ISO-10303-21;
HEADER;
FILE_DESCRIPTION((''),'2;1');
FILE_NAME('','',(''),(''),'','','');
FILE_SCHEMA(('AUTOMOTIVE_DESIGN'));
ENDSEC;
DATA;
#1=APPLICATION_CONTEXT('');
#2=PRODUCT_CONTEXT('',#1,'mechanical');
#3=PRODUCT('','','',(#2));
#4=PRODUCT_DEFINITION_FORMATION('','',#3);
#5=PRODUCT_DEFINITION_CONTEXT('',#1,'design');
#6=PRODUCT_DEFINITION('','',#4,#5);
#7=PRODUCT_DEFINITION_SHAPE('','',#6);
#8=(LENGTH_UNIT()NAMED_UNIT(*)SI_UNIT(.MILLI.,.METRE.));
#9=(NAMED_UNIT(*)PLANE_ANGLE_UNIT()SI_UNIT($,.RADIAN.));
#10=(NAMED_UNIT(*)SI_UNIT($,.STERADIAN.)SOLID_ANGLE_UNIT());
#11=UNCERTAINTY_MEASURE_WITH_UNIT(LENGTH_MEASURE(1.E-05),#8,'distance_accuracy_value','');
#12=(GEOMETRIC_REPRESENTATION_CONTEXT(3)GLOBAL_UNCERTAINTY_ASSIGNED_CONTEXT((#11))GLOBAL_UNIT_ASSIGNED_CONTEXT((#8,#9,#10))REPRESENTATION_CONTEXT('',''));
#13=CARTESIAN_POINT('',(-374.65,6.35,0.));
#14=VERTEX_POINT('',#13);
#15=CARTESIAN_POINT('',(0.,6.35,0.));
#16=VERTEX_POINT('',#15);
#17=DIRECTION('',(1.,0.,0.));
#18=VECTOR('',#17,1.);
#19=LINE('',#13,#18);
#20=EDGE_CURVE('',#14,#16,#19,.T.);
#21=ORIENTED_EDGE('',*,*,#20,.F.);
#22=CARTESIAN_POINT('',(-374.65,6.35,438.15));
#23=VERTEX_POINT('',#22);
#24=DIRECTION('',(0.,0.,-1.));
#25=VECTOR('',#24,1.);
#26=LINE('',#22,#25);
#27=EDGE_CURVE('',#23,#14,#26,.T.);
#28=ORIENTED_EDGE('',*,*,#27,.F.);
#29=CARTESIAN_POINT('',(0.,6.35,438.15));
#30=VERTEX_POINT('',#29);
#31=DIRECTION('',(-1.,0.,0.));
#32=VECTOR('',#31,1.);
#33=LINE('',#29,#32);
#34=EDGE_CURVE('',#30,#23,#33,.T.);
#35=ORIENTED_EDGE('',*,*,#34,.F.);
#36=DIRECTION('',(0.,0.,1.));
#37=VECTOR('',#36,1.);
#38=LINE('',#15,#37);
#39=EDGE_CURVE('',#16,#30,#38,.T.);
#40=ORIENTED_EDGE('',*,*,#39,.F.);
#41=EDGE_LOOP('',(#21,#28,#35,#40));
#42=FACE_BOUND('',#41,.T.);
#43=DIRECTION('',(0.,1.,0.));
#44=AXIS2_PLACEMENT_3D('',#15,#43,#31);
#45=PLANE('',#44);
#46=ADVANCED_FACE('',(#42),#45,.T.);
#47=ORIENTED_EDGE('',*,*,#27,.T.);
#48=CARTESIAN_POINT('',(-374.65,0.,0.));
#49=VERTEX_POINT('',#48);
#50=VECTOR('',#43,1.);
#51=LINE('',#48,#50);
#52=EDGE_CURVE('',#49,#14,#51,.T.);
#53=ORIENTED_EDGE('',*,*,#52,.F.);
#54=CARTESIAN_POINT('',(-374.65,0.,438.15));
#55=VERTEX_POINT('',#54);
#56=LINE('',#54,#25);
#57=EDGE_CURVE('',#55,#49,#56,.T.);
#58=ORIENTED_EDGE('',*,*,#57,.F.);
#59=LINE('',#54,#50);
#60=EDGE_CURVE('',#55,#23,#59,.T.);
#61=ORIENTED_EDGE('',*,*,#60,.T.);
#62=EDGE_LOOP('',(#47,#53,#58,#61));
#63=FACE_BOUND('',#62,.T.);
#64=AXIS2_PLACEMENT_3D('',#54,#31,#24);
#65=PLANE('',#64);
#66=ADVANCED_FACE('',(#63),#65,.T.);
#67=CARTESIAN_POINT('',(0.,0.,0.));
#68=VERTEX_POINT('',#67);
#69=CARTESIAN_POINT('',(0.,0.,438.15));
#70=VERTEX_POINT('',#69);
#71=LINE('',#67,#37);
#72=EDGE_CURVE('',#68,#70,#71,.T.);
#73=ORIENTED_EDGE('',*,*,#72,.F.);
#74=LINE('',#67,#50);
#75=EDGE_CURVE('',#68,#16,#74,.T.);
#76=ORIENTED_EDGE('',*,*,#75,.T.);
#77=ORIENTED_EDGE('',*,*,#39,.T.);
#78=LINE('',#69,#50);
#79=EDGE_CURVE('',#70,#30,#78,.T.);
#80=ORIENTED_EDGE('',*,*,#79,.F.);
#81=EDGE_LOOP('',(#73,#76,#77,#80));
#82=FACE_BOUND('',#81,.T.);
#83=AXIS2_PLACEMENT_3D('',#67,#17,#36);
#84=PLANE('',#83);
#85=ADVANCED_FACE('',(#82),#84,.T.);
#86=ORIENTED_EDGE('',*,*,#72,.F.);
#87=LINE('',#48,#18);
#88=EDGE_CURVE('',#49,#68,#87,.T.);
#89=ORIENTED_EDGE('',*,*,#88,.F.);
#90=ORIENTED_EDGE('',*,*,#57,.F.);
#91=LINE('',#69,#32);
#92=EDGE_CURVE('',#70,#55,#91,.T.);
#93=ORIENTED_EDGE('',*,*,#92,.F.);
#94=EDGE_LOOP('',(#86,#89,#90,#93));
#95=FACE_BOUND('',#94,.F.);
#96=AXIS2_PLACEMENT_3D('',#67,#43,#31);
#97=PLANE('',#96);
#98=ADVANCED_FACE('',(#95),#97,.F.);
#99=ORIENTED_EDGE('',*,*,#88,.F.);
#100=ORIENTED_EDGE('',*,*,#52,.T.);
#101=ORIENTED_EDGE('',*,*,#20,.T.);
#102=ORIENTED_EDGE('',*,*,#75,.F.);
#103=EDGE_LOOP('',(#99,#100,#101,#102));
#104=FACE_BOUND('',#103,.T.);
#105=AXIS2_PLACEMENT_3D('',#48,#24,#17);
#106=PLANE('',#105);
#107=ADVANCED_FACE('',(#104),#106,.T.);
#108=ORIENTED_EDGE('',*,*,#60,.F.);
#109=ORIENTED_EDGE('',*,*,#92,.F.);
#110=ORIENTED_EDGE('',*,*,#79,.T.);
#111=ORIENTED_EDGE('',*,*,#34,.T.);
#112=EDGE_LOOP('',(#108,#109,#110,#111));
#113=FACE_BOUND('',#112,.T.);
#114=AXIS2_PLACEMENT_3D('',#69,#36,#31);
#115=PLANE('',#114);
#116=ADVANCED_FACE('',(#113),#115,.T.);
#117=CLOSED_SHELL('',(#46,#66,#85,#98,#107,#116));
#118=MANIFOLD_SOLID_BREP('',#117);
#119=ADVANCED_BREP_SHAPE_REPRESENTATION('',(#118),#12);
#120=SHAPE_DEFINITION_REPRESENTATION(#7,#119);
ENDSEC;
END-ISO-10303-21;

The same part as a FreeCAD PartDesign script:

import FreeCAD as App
import Part
import Sketcher
from FreeCAD import Vector
Q = App.Units.Quantity

doc = App.newDocument("Part")
params = doc.addObject("Spreadsheet::Sheet", "Params")
for row, (alias, value) in enumerate([
    ("sketch1_width", "14.75 in"),
    ("sketch1_height", "17.25 in"),
    ("pad1_length", "0.25 in"),
], start=1):
    params.set(f"A{row}", alias)
    params.set(f"B{row}", "=" + value)
    params.setAlias(f"B{row}", alias)

body = doc.addObject("PartDesign::Body", "Body")

sketch1 = body.newObject("Sketcher::SketchObject", "Sketch")
sketch1.AttachmentSupport = (doc.getObject("XZ_Plane"), [""])
sketch1.MapMode = "FlatFace"
sketch1.addGeometry(Part.LineSegment(Vector(0, 438.15, 0), Vector(0, 0, 0)), False)
sketch1.addGeometry(Part.LineSegment(Vector(0, 0, 0), Vector(-374.65, 0, 0)), False)
sketch1.addGeometry(Part.LineSegment(Vector(-374.65, 0, 0), Vector(-374.65, 438.15, 0)), False)
sketch1.addGeometry(Part.LineSegment(Vector(-374.65, 438.15, 0), Vector(0, 438.15, 0)), False)
sketch1.addConstraint(Sketcher.Constraint("Coincident", 0, 2, 1, 1))
sketch1.addConstraint(Sketcher.Constraint("Coincident", 1, 2, 2, 1))
sketch1.addConstraint(Sketcher.Constraint("Coincident", 2, 2, 3, 1))
sketch1.addConstraint(Sketcher.Constraint("Coincident", 3, 2, 0, 1))
sketch1.addConstraint(Sketcher.Constraint("Vertical", 0))
sketch1.addConstraint(Sketcher.Constraint("Horizontal", 1))
sketch1.addConstraint(Sketcher.Constraint("Vertical", 2))
sketch1.addConstraint(Sketcher.Constraint("Horizontal", 3))
sketch1.addConstraint(Sketcher.Constraint("Coincident", 0, 2, -1, 1))
sketch1.addConstraint(Sketcher.Constraint("DistanceX", 1, 2, 1, 1, Q("14.75 in")))
sketch1.addConstraint(Sketcher.Constraint("DistanceY", 0, 2, 0, 1, Q("17.25 in")))
sketch1.setExpression("Constraints[9]", "Params.sketch1_width")
sketch1.setExpression("Constraints[10]", "Params.sketch1_height")
pad1 = body.newObject("PartDesign::Pad", "Pad")
pad1.Profile = sketch1
pad1.setExpression("Length", "Params.pad1_length")
pad1.Reversed = True

doc.recompute()
